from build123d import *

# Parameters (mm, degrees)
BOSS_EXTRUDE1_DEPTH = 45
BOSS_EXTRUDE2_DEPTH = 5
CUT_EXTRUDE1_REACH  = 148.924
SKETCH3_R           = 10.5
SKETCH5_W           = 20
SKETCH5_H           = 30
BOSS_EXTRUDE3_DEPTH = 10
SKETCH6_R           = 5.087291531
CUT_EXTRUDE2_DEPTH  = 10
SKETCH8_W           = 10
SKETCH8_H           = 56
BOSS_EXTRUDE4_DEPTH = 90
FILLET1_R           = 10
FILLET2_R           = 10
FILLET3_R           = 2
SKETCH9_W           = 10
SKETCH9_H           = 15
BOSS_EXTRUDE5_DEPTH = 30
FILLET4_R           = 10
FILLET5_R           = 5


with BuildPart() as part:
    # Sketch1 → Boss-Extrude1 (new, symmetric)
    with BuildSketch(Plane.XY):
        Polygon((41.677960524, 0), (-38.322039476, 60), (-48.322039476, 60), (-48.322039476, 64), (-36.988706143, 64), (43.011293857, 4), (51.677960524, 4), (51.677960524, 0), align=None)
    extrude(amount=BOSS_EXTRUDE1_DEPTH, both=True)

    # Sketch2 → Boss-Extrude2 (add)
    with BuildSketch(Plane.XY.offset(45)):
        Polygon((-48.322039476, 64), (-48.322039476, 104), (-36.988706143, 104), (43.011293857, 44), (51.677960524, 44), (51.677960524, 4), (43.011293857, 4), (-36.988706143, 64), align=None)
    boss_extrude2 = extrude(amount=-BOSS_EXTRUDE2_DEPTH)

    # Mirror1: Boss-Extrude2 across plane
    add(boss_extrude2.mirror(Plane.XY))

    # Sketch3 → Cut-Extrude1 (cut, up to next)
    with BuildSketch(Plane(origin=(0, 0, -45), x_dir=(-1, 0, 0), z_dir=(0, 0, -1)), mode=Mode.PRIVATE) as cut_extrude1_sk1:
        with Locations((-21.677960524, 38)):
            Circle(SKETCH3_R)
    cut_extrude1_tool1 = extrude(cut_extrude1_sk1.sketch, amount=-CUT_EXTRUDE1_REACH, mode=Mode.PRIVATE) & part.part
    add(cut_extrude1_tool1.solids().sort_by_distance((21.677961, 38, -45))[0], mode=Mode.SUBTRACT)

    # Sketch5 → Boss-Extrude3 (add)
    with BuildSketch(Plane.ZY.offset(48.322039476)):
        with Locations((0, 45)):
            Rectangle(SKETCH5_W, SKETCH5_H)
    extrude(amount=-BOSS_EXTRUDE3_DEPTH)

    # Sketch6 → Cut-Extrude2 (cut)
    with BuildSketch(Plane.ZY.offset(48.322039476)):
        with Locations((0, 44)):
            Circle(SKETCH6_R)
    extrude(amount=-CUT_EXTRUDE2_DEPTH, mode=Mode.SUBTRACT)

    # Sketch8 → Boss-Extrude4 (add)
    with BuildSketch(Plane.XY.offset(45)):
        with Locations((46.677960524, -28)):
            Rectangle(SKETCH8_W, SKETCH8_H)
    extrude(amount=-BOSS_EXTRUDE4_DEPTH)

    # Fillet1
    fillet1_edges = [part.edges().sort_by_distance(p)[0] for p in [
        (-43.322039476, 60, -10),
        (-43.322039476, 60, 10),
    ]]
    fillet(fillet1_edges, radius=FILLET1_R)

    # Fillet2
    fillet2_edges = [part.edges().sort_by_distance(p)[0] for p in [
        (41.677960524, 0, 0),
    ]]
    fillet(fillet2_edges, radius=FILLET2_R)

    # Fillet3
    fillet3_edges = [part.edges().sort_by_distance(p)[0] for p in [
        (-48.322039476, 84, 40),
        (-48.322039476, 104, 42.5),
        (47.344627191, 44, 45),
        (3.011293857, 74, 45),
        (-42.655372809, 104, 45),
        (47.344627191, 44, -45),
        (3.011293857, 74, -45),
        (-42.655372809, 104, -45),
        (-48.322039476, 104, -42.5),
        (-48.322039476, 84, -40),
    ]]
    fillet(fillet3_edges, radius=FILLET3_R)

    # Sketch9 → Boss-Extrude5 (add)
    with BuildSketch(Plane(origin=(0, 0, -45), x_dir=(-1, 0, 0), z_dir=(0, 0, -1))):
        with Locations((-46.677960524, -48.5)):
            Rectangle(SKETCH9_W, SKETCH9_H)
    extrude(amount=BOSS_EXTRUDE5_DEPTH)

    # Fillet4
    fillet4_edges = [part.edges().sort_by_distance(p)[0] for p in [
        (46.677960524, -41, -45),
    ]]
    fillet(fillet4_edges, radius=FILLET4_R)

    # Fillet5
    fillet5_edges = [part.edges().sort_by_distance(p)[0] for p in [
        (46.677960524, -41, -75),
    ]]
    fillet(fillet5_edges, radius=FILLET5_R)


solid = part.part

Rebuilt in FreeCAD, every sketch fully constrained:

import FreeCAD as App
import Part
import Sketcher


def edges_at(feature, points):
    """Names of the edges that pass closest to the given points."""
    edges = feature.Shape.Edges
    near = lambda p: min(range(len(edges)), key=lambda i: edges[i].distToShape(Part.Vertex(*p))[0])
    return sorted({f"Edge{near(p) + 1}" for p in points})

doc = App.newDocument("Part")
body = doc.addObject("PartDesign::Body", "Body")

sketch1 = body.newObject("Sketcher::SketchObject", "Sketch")
sketch1.AttachmentSupport = (doc.getObject("XY_Plane"), [""])
sketch1.MapMode = "FlatFace"
sketch1.addGeometry([
    Part.LineSegment(App.Vector(-38.322039, 60, 0), App.Vector(41.677961, 0, 0)),
    Part.LineSegment(App.Vector(41.677961, 0, 0), App.Vector(51.677961, 0, 0)),
    Part.LineSegment(App.Vector(51.677961, 0, 0), App.Vector(51.677961, 4, 0)),
    Part.LineSegment(App.Vector(51.677961, 4, 0), App.Vector(43.011294, 4, 0)),
    Part.LineSegment(App.Vector(43.011294, 4, 0), App.Vector(-36.988706, 64, 0)),
    Part.LineSegment(App.Vector(-36.988706, 64, 0), App.Vector(-48.322039, 64, 0)),
    Part.LineSegment(App.Vector(-48.322039, 64, 0), App.Vector(-48.322039, 60, 0)),
    Part.LineSegment(App.Vector(-48.322039, 60, 0), App.Vector(-38.322039, 60, 0)),
], False)
sketch1.addConstraint([
    Sketcher.Constraint("Coincident", 0, 2, 1, 1),
    Sketcher.Constraint("Coincident", 1, 2, 2, 1),
    Sketcher.Constraint("Coincident", 2, 2, 3, 1),
    Sketcher.Constraint("Coincident", 3, 2, 4, 1),
    Sketcher.Constraint("Coincident", 4, 2, 5, 1),
    Sketcher.Constraint("Coincident", 5, 2, 6, 1),
    Sketcher.Constraint("Coincident", 6, 2, 7, 1),
    Sketcher.Constraint("Coincident", 7, 2, 0, 1),
    Sketcher.Constraint("Horizontal", 1),
    Sketcher.Constraint("Vertical", 2),
    Sketcher.Constraint("Horizontal", 3),
    Sketcher.Constraint("Horizontal", 5),
    Sketcher.Constraint("Vertical", 6),
    Sketcher.Constraint("Horizontal", 7),
    Sketcher.Constraint("PointOnObject", 0, 2, -1),
    Sketcher.Constraint("Parallel", 0, 4),
    Sketcher.Constraint("Equal", 1, 7),
    Sketcher.Constraint("Equal", 2, 6),
    Sketcher.Constraint("DistanceX", 1, 1, 1, 2, 10.0),
    Sketcher.Constraint("DistanceY", 2, 1, 2, 2, 4.0),
    Sketcher.Constraint("Distance", 0, 100.0),
    Sketcher.Constraint("DistanceY", -1, 1, 4, 2, 64.0),
    Sketcher.Constraint("DistanceX", 3, 2, 3, 1, 8.666667),
    Sketcher.Constraint("DistanceX", -1, 1, 0, 2, 41.677961),
])
pad1 = body.newObject("PartDesign::Pad", "Pad")
pad1.Profile = sketch1
pad1.Length = 90
pad1.Midplane = True

sketch2 = body.newObject("Sketcher::SketchObject", "Sketch001")
sketch2.AttachmentSupport = (doc.getObject("XY_Plane"), [""])
sketch2.MapMode = "FlatFace"
sketch2.AttachmentOffset = App.Placement(App.Vector(0, 0, 45), App.Rotation())
sketch2.addGeometry([
    Part.LineSegment(App.Vector(-48.322039, 104, 0), App.Vector(-48.322039, 64, 0)),
    Part.LineSegment(App.Vector(-48.322039, 64, 0), App.Vector(-36.988706, 64, 0)),
    Part.LineSegment(App.Vector(-36.988706, 64, 0), App.Vector(43.011294, 4, 0)),
    Part.LineSegment(App.Vector(43.011294, 4, 0), App.Vector(51.677961, 4, 0)),
    Part.LineSegment(App.Vector(51.677961, 4, 0), App.Vector(51.677961, 44, 0)),
    Part.LineSegment(App.Vector(51.677961, 44, 0), App.Vector(43.011294, 44, 0)),
    Part.LineSegment(App.Vector(43.011294, 44, 0), App.Vector(-36.988706, 104, 0)),
    Part.LineSegment(App.Vector(-36.988706, 104, 0), App.Vector(-48.322039, 104, 0)),
], False)
sketch2.addConstraint([
    Sketcher.Constraint("Coincident", 0, 2, 1, 1),
    Sketcher.Constraint("Coincident", 1, 2, 2, 1),
    Sketcher.Constraint("Coincident", 2, 2, 3, 1),
    Sketcher.Constraint("Coincident", 3, 2, 4, 1),
    Sketcher.Constraint("Coincident", 4, 2, 5, 1),
    Sketcher.Constraint("Coincident", 5, 2, 6, 1),
    Sketcher.Constraint("Coincident", 6, 2, 7, 1),
    Sketcher.Constraint("Coincident", 7, 2, 0, 1),
    Sketcher.Constraint("Vertical", 0),
    Sketcher.Constraint("Horizontal", 1),
    Sketcher.Constraint("Horizontal", 3),
    Sketcher.Constraint("Vertical", 4),
    Sketcher.Constraint("Horizontal", 5),
    Sketcher.Constraint("Horizontal", 7),
    Sketcher.Constraint("Parallel", 2, 6),
    Sketcher.Constraint("Vertical", 2, 2, 5, 2),
    Sketcher.Constraint("Vertical", 1, 2, 6, 2),
    Sketcher.Constraint("DistanceY", 0, 2, 0, 1, 40.0),
    Sketcher.Constraint("Distance", 2, 100.0),
    Sketcher.Constraint("DistanceY", -1, 1, 0, 2, 64.0),
    Sketcher.Constraint("DistanceY", -1, 1, 2, 2, 4.0),
    Sketcher.Constraint("DistanceX", 0, 2, 3, 2, 100.0),
    Sketcher.Constraint("DistanceX", 1, 1, 1, 2, 11.333333),
    Sketcher.Constraint("DistanceX", 0, 2, -1, 1, 48.322039),
])
pad2 = body.newObject("PartDesign::Pad", "Pad001")
pad2.Profile = sketch2
pad2.Length = 5
pad2.Reversed = True
doc.recompute()

mirrored = body.newObject("PartDesign::Mirrored", "Mirrored")
mirrored.Originals = [pad2]
mirrored.MirrorPlane = (doc.getObject("XY_Plane"), [""])
body.Tip = mirrored

sketch3 = body.newObject("Sketcher::SketchObject", "Sketch002")
sketch3.AttachmentSupport = (doc.getObject("XY_Plane"), [""])
sketch3.MapMode = "FlatFace"
sketch3.AttachmentOffset = App.Placement(App.Vector(0, 0, -45), App.Rotation())
sketch3.addGeometry(Part.Circle(App.Vector(21.677961, 38, 0), App.Vector(0, 0, 1), 10.5), False)
sketch3.addConstraint([
    Sketcher.Constraint("Diameter", 0, 21.0),
    Sketcher.Constraint("DistanceY", -1, 1, 0, 3, 38.0),
    Sketcher.Constraint("DistanceX", -1, 1, 0, 3, 21.677961),
])
pocket1 = body.newObject("PartDesign::Pocket", "Pocket")
pocket1.Profile = sketch3
pocket1.Type = "UpToFirst"
pocket1.Reversed = True

sketch4 = body.newObject("Sketcher::SketchObject", "Sketch003")
sketch4.AttachmentSupport = (doc.getObject("YZ_Plane"), [""])
sketch4.MapMode = "FlatFace"
sketch4.AttachmentOffset = App.Placement(App.Vector(0, 0, -48.322039), App.Rotation())
sketch4.addGeometry([
    Part.LineSegment(App.Vector(60, -10, 0), App.Vector(30, -10, 0)),
    Part.LineSegment(App.Vector(30, -10, 0), App.Vector(30, 10, 0)),
    Part.LineSegment(App.Vector(30, 10, 0), App.Vector(60, 10, 0)),
    Part.LineSegment(App.Vector(60, 10, 0), App.Vector(60, -10, 0)),
], False)
sketch4.addConstraint([
    Sketcher.Constraint("Coincident", 0, 2, 1, 1),
    Sketcher.Constraint("Coincident", 1, 2, 2, 1),
    Sketcher.Constraint("Coincident", 2, 2, 3, 1),
    Sketcher.Constraint("Coincident", 3, 2, 0, 1),
    Sketcher.Constraint("Horizontal", 0),
    Sketcher.Constraint("Vertical", 1),
    Sketcher.Constraint("Horizontal", 2),
    Sketcher.Constraint("Vertical", 3),
    Sketcher.Constraint("DistanceX", 0, 2, 0, 1, 30.0),
    Sketcher.Constraint("DistanceY", 1, 1, 1, 2, 20.0),
    Sketcher.Constraint("DistanceX", -1, 1, 0, 2, 30.0),
    Sketcher.Constraint("DistanceY", 0, 2, -1, 1, 10.0),
])
pad3 = body.newObject("PartDesign::Pad", "Pad002")
pad3.Profile = sketch4
pad3.Length = 10

sketch5 = body.newObject("Sketcher::SketchObject", "Sketch004")
sketch5.AttachmentSupport = (doc.getObject("YZ_Plane"), [""])
sketch5.MapMode = "FlatFace"
sketch5.AttachmentOffset = App.Placement(App.Vector(0, 0, -48.322039), App.Rotation())
sketch5.addGeometry(Part.Circle(App.Vector(44, 0, 0), App.Vector(0, 0, 1), 5.087292), False)
sketch5.addConstraint([
    Sketcher.Constraint("PointOnObject", 0, 3, -1),
    Sketcher.Constraint("DistanceX", -1, 1, 0, 3, 44.0),
    Sketcher.Constraint("Diameter", 0, 10.174583),
])
pocket2 = body.newObject("PartDesign::Pocket", "Pocket001")
pocket2.Profile = sketch5
pocket2.Length = 10
pocket2.Reversed = True

sketch6 = body.newObject("Sketcher::SketchObject", "Sketch005")
sketch6.AttachmentSupport = (doc.getObject("XY_Plane"), [""])
sketch6.MapMode = "FlatFace"
sketch6.AttachmentOffset = App.Placement(App.Vector(0, 0, 45), App.Rotation())
sketch6.addGeometry([
    Part.LineSegment(App.Vector(41.677961, 0, 0), App.Vector(41.677961, -56, 0)),
    Part.LineSegment(App.Vector(41.677961, -56, 0), App.Vector(51.677961, -56, 0)),
    Part.LineSegment(App.Vector(51.677961, -56, 0), App.Vector(51.677961, 0, 0)),
    Part.LineSegment(App.Vector(51.677961, 0, 0), App.Vector(41.677961, 0, 0)),
], False)
sketch6.addConstraint([
    Sketcher.Constraint("Coincident", 0, 2, 1, 1),
    Sketcher.Constraint("Coincident", 1, 2, 2, 1),
    Sketcher.Constraint("Coincident", 2, 2, 3, 1),
    Sketcher.Constraint("Coincident", 3, 2, 0, 1),
    Sketcher.Constraint("Vertical", 0),
    Sketcher.Constraint("Horizontal", 1),
    Sketcher.Constraint("Vertical", 2),
    Sketcher.Constraint("Horizontal", 3),
    Sketcher.Constraint("PointOnObject", 2, 2, -1),
    Sketcher.Constraint("DistanceX", 1, 1, 1, 2, 10.0),
    Sketcher.Constraint("DistanceY", 0, 2, 0, 1, 56.0),
    Sketcher.Constraint("DistanceX", -1, 1, 0, 2, 41.677961),
])
pad4 = body.newObject("PartDesign::Pad", "Pad003")
pad4.Profile = sketch6
pad4.Length = 90
pad4.Reversed = True
doc.recompute()

fillet = body.newObject("PartDesign::Fillet", "Fillet")
fillet.Base = (pad4, edges_at(pad4, [(-43.322, 60, -10), (-43.322, 60, 10)]))
fillet.Radius = 10
doc.recompute()

fillet2 = body.newObject("PartDesign::Fillet", "Fillet001")
fillet2.Base = (fillet, edges_at(fillet, [(41.678, 0, 0)]))
fillet2.Radius = 10
doc.recompute()

fillet3 = body.newObject("PartDesign::Fillet", "Fillet002")
fillet3.Base = (fillet2, edges_at(fillet2, [
    (-48.322, 84, 40),
    (-48.322, 104, 42.5),
    (47.345, 44, 45),
    (3.011, 74, 45),
    (-42.655, 104, 45),
    (47.345, 44, -45),
    (3.011, 74, -45),
    (-42.655, 104, -45),
    (-48.322, 104, -42.5),
    (-48.322, 84, -40),
]))
fillet3.Radius = 2

sketch7 = body.newObject("Sketcher::SketchObject", "Sketch006")
sketch7.AttachmentSupport = (doc.getObject("XY_Plane"), [""])
sketch7.MapMode = "FlatFace"
sketch7.AttachmentOffset = App.Placement(App.Vector(0, 0, -45), App.Rotation())
sketch7.addGeometry([
    Part.LineSegment(App.Vector(51.677961, -41, 0), App.Vector(51.677961, -56, 0)),
    Part.LineSegment(App.Vector(51.677961, -56, 0), App.Vector(41.677961, -56, 0)),
    Part.LineSegment(App.Vector(41.677961, -56, 0), App.Vector(41.677961, -41, 0)),
    Part.LineSegment(App.Vector(41.677961, -41, 0), App.Vector(51.677961, -41, 0)),
], False)
sketch7.addConstraint([
    Sketcher.Constraint("Coincident", 0, 2, 1, 1),
    Sketcher.Constraint("Coincident", 1, 2, 2, 1),
    Sketcher.Constraint("Coincident", 2, 2, 3, 1),
    Sketcher.Constraint("Coincident", 3, 2, 0, 1),
    Sketcher.Constraint("Vertical", 0),
    Sketcher.Constraint("Horizontal", 1),
    Sketcher.Constraint("Vertical", 2),
    Sketcher.Constraint("Horizontal", 3),
    Sketcher.Constraint("DistanceX", 1, 2, 1, 1, 10.0),
    Sketcher.Constraint("DistanceY", 0, 2, 0, 1, 15.0),
    Sketcher.Constraint("DistanceY", 0, 2, -1, 1, 56.0),
    Sketcher.Constraint("DistanceX", -1, 1, 0, 2, 51.677961),
])
pad5 = body.newObject("PartDesign::Pad", "Pad004")
pad5.Profile = sketch7
pad5.Length = 30
pad5.Reversed = True
doc.recompute()

fillet4 = body.newObject("PartDesign::Fillet", "Fillet003")
fillet4.Base = (pad5, edges_at(pad5, [(46.678, -41, -45)]))
fillet4.Radius = 10
doc.recompute()

fillet5 = body.newObject("PartDesign::Fillet", "Fillet004")
fillet5.Base = (fillet4, edges_at(fillet4, [(46.678, -41, -75)]))
fillet5.Radius = 5

doc.recompute()
